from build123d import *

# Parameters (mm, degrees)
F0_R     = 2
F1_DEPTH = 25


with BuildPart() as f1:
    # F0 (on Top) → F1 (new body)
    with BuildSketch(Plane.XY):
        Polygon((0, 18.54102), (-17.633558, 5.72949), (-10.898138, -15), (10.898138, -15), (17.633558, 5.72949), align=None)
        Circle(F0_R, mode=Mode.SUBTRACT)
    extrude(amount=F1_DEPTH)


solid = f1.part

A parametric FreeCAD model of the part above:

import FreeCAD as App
import Part
import Sketcher
from FreeCAD import Vector
Q = App.Units.Quantity

doc = App.newDocument("Part")
params = doc.addObject("Spreadsheet::Sheet", "Params")
for row, (alias, value) in enumerate([
    ("sketch1_diameter", "4 mm"),
    ("pad1_length", "25 mm"),
], start=1):
    params.set(f"A{row}", alias)
    params.set(f"B{row}", "=" + value)
    params.setAlias(f"B{row}", alias)

body = doc.addObject("PartDesign::Body", "Body")

# Sketch on XY plane
sketch1 = body.newObject("Sketcher::SketchObject", "Sketch")
sketch1.AttachmentSupport = (doc.getObject("XY_Plane"), [""])
sketch1.MapMode = "FlatFace"
sketch1.addGeometry([
    Part.LineSegment(Vector(0, 18.5, 0), Vector(-17.6, 5.7, 0)),  # 0
    Part.LineSegment(Vector(-17.6, 5.7, 0), Vector(-10.9, -15, 0)),  # 1
    Part.LineSegment(Vector(-10.9, -15, 0), Vector(10.9, -15, 0)),  # 2
    Part.LineSegment(Vector(10.9, -15, 0), Vector(17.6, 5.7, 0)),  # 3
    Part.LineSegment(Vector(17.6, 5.7, 0), Vector(0, 18.5, 0)),  # 4
    Part.Circle(Vector(0, 0, 0), Vector(0, 0, 1), 2),  # 5
], False)
sketch1.addConstraint([
    Sketcher.Constraint("Coincident", 0, 2, 1, 1),
    Sketcher.Constraint("Coincident", 1, 2, 2, 1),
    Sketcher.Constraint("Coincident", 2, 2, 3, 1),
    Sketcher.Constraint("Coincident", 3, 2, 4, 1),
    Sketcher.Constraint("Coincident", 4, 2, 0, 1),
    Sketcher.Constraint("Horizontal", 2),
    Sketcher.Constraint("Coincident", 5, 3, -1, 1),
    Sketcher.Constraint("Symmetric", 0, 2, 3, 2, -2),
    Sketcher.Constraint("PointOnObject", 4, 2, -2),
    Sketcher.Constraint("Equal", 0, 1),
    Sketcher.Constraint("Equal", 1, 3),
    Sketcher.Constraint("Diameter", 5, 4.0),
    Sketcher.Constraint("Angle", 0, Q("-144 deg")),
    Sketcher.Constraint("Angle", 1, Q("-71.999999 deg")),
    Sketcher.Constraint("DistanceY", 1, 2, -1, 1, 15.0),
    Sketcher.Constraint("DistanceX", 2, 1, 2, 2, 21.796276),
])
sketch1.setExpression("Constraints[11]", "Params.sketch1_diameter")
pad1 = body.newObject("PartDesign::Pad", "Pad")
pad1.Profile = sketch1
pad1.setExpression("Length", "Params.pad1_length")

doc.recompute()
